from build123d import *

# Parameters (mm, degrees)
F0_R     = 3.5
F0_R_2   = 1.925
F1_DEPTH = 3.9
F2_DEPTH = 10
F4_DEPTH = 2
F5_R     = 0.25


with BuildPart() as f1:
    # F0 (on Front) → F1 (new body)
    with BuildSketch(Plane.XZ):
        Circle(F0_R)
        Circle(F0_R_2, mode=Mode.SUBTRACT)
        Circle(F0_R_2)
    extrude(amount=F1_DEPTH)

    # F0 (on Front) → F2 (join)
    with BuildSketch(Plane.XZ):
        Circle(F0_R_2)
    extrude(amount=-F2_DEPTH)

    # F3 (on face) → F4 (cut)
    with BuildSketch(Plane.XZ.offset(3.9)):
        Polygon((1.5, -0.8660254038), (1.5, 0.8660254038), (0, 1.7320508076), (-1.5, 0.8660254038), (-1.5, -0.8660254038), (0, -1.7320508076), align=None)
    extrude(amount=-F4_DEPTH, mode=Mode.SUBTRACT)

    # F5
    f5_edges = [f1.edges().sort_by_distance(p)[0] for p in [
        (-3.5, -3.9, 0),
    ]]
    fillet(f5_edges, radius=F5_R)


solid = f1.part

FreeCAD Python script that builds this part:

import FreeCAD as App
import Part
import Sketcher

V = App.Vector
Q = App.Units.Quantity


def edges_at(feature, points):
    """Names of the edges that pass closest to the given points."""
    edges = feature.Shape.Edges
    near = lambda p: min(range(len(edges)), key=lambda i: edges[i].distToShape(Part.Vertex(*p))[0])
    return sorted({f"Edge{near(p) + 1}" for p in points})


def add_polygon(sketch, points):
    """Adds a closed chain of lines whose ends are joined by coincident constraints."""
    first, n = sketch.GeometryCount, len(points)
    for a, b in zip(points, points[1:] + points[:1]):
        sketch.addGeometry(Part.LineSegment(App.Vector(*a, 0), App.Vector(*b, 0)), False)
    for i in range(n):
        sketch.addConstraint(Sketcher.Constraint("Coincident", first + i, 2, first + (i + 1) % n, 1))

doc = App.newDocument("Part")
params = doc.addObject("Spreadsheet::Sheet", "Params")
for row, (alias, value) in enumerate([
    ("sketch1_diameter", "7 mm"),
    ("pad1_length", "3.9 mm"),
    ("sketch2_diameter", "3.85 mm"),
    ("pad2_length", "10 mm"),
    ("pocket1_length", "2 mm"),
    ("fillet_radius", "0.25 mm"),
], start=1):
    params.set(f"A{row}", alias)
    params.set(f"B{row}", "=" + value)
    params.setAlias(f"B{row}", alias)

body = doc.addObject("PartDesign::Body", "Body")

# Sketch on XZ plane
sketch1 = doc.addObject("Sketcher::SketchObject", "Sketch")
body.addObject(sketch1)
sketch1.AttachmentSupport = (doc.XZ_Plane, [""])
sketch1.MapMode = "FlatFace"
sketch1.addGeometry(Part.Circle(V(0, 0, 0), V(0, 0, 1), 3.5), False)
sketch1.addConstraint([
    Sketcher.Constraint("Coincident", 0, 3, -1, 1),
    Sketcher.Constraint("Diameter", 0, 7.0),
])
sketch1.setExpression("Constraints[1]", "Params.sketch1_diameter")
pad1 = doc.addObject("PartDesign::Pad", "Pad")
body.addObject(pad1)
pad1.Profile = sketch1
pad1.setExpression("Length", "Params.pad1_length")

# Sketch on XZ plane
sketch2 = doc.addObject("Sketcher::SketchObject", "Sketch001")
body.addObject(sketch2)
sketch2.AttachmentSupport = (doc.XZ_Plane, [""])
sketch2.MapMode = "FlatFace"
sketch2.addGeometry(Part.Circle(V(0, 0, 0), V(0, 0, 1), 1.9), False)
sketch2.addConstraint([
    Sketcher.Constraint("Coincident", 0, 3, -1, 1),
    Sketcher.Constraint("Diameter", 0, 3.85),
])
sketch2.setExpression("Constraints[1]", "Params.sketch2_diameter")
pad2 = doc.addObject("PartDesign::Pad", "Pad001")
body.addObject(pad2)
pad2.Profile = sketch2
pad2.setExpression("Length", "Params.pad2_length")
pad2.Reversed = True

# Sketch on XZ plane
sketch3 = doc.addObject("Sketcher::SketchObject", "Sketch002")
body.addObject(sketch3)
sketch3.AttachmentSupport = (doc.XZ_Plane, [""])
sketch3.MapMode = "FlatFace"
sketch3.AttachmentOffset = App.Placement(V(0, 0, 3.9), App.Rotation())
add_polygon(sketch3, [(1.5, -0.9), (1.5, 0.9), (0, 1.7), (-1.5, 0.9), (-1.5, -0.9), (0, -1.7)])  # lines 0-5
sketch3.addConstraint([
    Sketcher.Constraint("Vertical", 0),
    Sketcher.Constraint("Vertical", 3),
    Sketcher.Constraint("Symmetric", 0, 2, 3, 2, -1, 1),
    Sketcher.Constraint("Symmetric", 1, 2, 4, 2, -1, 1),
    Sketcher.Constraint("PointOnObject", 1, 2, -2),
    Sketcher.Constraint("Parallel", 2, 5),
    Sketcher.Constraint("Horizontal", 0, 2, 2, 2),
    Sketcher.Constraint("Angle", 1, Q("150 deg")),
    Sketcher.Constraint("DistanceX", 2, 2, 0, 2, 3.0),
    Sketcher.Constraint("DistanceY", 0, 1, 0, 2, 1.732051),
])
pocket1 = doc.addObject("PartDesign::Pocket", "Pocket")
body.addObject(pocket1)
pocket1.Profile = sketch3
pocket1.setExpression("Length", "Params.pocket1_length")
doc.recompute()

fillet = doc.addObject("PartDesign::Fillet", "Fillet")
body.addObject(fillet)
fillet.Base = (pocket1, edges_at(pocket1, [(-3.5, -3.9, 0)]))
fillet.setExpression("Radius", "Params.fillet_radius")

doc.recompute()
